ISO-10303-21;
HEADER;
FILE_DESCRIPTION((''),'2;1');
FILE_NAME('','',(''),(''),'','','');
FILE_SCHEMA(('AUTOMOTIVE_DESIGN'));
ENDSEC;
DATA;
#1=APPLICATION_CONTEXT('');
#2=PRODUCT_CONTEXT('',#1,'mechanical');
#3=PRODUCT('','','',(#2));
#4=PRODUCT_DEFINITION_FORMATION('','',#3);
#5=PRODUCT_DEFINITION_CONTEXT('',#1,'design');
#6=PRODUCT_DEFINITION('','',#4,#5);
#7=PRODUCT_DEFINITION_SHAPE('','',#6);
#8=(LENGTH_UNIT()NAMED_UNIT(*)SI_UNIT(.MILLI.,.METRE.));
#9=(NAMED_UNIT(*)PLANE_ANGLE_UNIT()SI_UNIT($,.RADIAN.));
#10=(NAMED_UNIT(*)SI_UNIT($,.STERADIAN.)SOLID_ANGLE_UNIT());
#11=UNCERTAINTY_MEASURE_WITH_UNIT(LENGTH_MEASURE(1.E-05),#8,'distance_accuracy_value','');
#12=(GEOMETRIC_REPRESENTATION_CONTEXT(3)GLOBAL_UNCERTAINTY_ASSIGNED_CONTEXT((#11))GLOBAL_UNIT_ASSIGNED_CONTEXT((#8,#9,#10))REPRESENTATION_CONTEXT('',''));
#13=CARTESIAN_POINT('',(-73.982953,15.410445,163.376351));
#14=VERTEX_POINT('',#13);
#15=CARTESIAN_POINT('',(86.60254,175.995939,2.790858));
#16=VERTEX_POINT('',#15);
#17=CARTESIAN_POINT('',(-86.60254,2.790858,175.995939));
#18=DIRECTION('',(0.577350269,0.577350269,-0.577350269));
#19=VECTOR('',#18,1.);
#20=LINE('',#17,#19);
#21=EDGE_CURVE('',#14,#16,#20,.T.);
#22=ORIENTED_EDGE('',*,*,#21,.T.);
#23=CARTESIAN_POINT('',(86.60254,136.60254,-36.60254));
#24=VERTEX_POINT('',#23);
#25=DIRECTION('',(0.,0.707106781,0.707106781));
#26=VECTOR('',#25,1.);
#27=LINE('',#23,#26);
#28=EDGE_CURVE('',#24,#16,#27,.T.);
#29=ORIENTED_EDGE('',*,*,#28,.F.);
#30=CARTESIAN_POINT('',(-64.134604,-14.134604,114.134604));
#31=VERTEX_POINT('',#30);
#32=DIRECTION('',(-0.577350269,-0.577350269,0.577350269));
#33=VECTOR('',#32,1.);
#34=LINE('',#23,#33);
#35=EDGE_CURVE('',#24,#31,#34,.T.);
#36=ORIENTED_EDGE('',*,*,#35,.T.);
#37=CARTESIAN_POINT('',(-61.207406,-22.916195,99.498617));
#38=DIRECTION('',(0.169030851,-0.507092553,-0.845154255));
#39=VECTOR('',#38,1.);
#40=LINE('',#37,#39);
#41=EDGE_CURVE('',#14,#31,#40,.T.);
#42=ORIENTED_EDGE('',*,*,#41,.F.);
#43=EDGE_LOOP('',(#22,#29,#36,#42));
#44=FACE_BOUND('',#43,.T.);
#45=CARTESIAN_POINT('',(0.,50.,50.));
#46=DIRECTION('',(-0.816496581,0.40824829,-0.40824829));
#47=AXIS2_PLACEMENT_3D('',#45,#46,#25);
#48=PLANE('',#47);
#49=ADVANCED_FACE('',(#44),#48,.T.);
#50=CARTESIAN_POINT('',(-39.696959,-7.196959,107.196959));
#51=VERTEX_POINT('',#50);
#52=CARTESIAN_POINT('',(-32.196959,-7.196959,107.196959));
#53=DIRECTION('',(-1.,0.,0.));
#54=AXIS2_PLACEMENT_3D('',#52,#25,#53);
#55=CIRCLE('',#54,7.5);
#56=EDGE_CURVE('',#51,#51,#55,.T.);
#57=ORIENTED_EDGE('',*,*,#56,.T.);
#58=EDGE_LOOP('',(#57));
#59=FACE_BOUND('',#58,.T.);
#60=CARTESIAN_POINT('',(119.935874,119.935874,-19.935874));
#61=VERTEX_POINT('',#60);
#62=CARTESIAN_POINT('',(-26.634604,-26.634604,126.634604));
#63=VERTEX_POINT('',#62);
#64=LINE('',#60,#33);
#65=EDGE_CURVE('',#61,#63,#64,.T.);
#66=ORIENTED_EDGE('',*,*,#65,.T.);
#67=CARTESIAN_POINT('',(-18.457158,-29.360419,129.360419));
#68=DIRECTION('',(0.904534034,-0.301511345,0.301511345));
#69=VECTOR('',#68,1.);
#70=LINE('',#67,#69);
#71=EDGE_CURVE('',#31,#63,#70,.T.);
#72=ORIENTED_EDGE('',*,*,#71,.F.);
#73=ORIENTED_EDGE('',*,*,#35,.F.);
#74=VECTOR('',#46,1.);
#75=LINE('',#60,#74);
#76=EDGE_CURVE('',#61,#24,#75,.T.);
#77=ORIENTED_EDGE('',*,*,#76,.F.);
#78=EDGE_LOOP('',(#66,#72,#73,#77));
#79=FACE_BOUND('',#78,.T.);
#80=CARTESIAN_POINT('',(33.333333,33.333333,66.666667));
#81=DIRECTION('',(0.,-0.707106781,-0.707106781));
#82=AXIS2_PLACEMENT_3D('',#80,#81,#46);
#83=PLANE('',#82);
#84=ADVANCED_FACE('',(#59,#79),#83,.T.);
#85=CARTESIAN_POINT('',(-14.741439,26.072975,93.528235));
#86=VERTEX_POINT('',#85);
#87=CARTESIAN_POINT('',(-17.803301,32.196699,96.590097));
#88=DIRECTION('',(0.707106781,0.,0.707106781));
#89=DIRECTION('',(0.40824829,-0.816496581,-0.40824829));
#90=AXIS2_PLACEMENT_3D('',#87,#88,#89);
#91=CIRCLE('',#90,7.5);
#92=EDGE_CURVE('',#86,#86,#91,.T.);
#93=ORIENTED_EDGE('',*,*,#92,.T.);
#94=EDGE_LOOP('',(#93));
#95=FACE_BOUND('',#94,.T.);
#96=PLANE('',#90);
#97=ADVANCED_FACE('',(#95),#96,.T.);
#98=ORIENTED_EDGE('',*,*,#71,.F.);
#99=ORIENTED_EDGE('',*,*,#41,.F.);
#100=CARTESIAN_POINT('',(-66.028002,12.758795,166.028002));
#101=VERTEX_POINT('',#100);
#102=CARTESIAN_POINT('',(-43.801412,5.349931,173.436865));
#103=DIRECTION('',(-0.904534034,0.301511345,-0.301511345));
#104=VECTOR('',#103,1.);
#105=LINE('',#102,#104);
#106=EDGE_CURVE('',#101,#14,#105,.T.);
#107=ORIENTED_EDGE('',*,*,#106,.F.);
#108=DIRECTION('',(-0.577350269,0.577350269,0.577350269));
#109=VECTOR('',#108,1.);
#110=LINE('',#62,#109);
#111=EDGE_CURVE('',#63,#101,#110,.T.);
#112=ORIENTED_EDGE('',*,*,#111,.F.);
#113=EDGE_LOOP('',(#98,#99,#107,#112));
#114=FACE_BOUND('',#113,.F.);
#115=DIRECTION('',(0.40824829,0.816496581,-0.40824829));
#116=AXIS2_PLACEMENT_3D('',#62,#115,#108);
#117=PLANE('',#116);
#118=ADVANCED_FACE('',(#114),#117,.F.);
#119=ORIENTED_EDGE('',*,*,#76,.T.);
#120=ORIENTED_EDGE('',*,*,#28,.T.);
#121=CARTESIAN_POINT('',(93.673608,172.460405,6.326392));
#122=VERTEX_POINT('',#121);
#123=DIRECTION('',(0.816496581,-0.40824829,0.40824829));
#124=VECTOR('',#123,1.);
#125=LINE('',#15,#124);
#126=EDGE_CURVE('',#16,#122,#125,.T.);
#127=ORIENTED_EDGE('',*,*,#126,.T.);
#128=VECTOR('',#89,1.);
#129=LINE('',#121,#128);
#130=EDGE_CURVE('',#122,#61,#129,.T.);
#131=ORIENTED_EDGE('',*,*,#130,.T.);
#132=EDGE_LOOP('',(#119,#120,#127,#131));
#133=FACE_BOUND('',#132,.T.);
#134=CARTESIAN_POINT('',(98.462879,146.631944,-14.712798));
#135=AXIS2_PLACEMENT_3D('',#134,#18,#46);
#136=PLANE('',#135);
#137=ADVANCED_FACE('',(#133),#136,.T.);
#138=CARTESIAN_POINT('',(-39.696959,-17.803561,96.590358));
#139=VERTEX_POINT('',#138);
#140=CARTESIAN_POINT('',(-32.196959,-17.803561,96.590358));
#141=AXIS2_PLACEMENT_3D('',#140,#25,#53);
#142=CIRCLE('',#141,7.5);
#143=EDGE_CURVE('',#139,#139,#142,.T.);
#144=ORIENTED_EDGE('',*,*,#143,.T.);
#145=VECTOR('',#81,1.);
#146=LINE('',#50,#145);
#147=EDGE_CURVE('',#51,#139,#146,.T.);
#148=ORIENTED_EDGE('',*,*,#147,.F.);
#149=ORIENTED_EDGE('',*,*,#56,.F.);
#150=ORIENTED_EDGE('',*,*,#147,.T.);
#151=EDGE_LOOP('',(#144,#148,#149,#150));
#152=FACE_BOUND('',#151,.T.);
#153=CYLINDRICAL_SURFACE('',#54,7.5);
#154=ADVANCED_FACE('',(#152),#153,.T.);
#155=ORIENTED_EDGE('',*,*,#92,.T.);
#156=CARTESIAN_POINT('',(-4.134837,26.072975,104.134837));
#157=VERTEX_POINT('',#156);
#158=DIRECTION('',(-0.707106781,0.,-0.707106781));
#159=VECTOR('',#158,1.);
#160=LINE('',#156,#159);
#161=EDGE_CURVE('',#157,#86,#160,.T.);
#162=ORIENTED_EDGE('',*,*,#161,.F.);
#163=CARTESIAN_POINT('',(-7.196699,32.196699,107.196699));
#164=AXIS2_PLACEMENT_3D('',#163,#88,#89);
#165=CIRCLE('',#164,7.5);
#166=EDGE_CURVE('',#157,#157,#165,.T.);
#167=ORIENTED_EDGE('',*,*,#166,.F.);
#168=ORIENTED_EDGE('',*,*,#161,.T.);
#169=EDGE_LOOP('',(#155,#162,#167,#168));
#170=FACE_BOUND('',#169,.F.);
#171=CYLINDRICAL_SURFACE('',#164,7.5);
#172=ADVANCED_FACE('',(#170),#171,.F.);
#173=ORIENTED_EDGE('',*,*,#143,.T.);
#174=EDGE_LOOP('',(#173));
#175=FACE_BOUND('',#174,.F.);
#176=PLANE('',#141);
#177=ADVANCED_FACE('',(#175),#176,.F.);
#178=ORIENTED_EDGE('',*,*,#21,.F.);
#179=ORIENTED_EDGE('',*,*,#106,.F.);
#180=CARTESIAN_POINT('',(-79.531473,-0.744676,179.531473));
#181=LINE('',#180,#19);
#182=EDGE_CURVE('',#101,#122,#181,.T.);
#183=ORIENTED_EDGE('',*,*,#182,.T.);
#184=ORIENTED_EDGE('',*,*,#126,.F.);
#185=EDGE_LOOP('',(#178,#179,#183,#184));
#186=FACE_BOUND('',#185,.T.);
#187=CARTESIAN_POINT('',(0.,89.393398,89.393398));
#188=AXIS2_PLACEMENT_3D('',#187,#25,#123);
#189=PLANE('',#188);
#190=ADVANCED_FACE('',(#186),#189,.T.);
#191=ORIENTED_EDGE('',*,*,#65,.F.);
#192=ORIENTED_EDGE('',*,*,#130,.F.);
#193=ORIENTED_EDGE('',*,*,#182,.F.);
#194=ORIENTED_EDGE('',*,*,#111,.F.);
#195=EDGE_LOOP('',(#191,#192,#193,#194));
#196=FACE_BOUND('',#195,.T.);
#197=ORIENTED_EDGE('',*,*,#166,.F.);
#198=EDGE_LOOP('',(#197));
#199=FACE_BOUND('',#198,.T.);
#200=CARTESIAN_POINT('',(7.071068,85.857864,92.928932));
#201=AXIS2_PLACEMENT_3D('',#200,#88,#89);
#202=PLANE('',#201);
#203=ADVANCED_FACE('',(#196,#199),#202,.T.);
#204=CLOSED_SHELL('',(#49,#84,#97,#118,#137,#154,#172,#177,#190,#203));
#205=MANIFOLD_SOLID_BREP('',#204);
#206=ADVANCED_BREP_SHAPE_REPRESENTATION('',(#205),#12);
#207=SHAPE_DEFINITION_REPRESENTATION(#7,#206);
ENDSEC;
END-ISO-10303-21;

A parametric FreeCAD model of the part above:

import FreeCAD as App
import Part
import Sketcher
from FreeCAD import Vector
Q = App.Units.Quantity


def add_polygon(sketch, points):
    """Adds a closed chain of lines whose ends are joined by coincident constraints."""
    first, n = sketch.GeometryCount, len(points)
    for a, b in zip(points, points[1:] + points[:1]):
        sketch.addGeometry(Part.LineSegment(App.Vector(*a, 0), App.Vector(*b, 0)), False)
    for i in range(n):
        sketch.addConstraint(Sketcher.Constraint("Coincident", first + i, 2, first + (i + 1) % n, 1))

doc = App.newDocument("Part")
body = doc.addObject("PartDesign::Body", "Body")

# Sketch on an angled plane
sketch1 = body.newObject("Sketcher::SketchObject", "Sketch")
sketch1.Placement = App.Placement(Vector(0, -50, 50), App.Rotation(Vector(0.816496581, -0.40824829, -0.40824829), Vector(0, -0.707106781, 0.707106781), Vector(-0.577350269, -0.577350269, -0.577350269), "ZXY"))
add_polygon(sketch1, [(0, 0), (0, 55.710678), (-8.660254, 55.710678), (-40.824829, 0)])  # lines 0-3
sketch1.addConstraint(Sketcher.Constraint("Vertical", 0))
sketch1.addConstraint(Sketcher.Constraint("Horizontal", 1))
sketch1.addConstraint(Sketcher.Constraint("Horizontal", 3))
sketch1.addConstraint(Sketcher.Constraint("Coincident", 3, 2, -1, 1))
sketch1.addConstraint(Sketcher.Constraint("Angle", 2, Q("-120 deg")))
sketch1.addConstraint(Sketcher.Constraint("DistanceX", 3, 1, 3, 2, Q("40.824829 mm")))
sketch1.addConstraint(Sketcher.Constraint("DistanceY", 0, 1, 0, 2, Q("55.710678 mm")))
pad1 = body.newObject("PartDesign::Pad", "Pad")
pad1.Profile = sketch1
pad1.Length = 300
pad1.Midplane = True

# Sketch on an angled plane
sketch2 = body.newObject("Sketcher::SketchObject", "Sketch001")
sketch2.Placement = App.Placement(Vector(0, -50, 50), App.Rotation(Vector(1, 0, 0), Vector(0, 0.707106781, 0.707106781), Vector(0, -0.707106781, 0.707106781), "ZXY"))
sketch2.addGeometry(Part.Circle(Vector(32.196959, 80.888716, 0), Vector(0, 0, 1), 7.5), False)
sketch2.addConstraint(Sketcher.Constraint("Diameter", 0, Q("15 mm")))
sketch2.addConstraint(Sketcher.Constraint("DistanceX", -1, 1, 0, 3, Q("32.196959 mm")))
sketch2.addConstraint(Sketcher.Constraint("DistanceY", -1, 1, 0, 3, Q("80.888716 mm")))
pad2 = body.newObject("PartDesign::Pad", "Pad001")
pad2.Profile = sketch2
pad2.Length = 15
pad2.Reversed = True

# Sketch on an angled plane
sketch3 = body.newObject("Sketcher::SketchObject", "Sketch002")
sketch3.Placement = App.Placement(Vector(-25, -50, 75), App.Rotation(Vector(-0.40824829, 0.816496581, -0.40824829), Vector(-0.577350269, -0.577350268, -0.577350269), Vector(-0.707106781, 0, 0.707106781), "ZXY"))
sketch3.addGeometry(Part.Circle(Vector(-11.75216, -47.456286, 0), Vector(0, 0, 1), 7.5), False)
sketch3.addConstraint(Sketcher.Constraint("Diameter", 0, Q("15 mm")))
sketch3.addConstraint(Sketcher.Constraint("DistanceX", 0, 3, -1, 1, Q("11.75216 mm")))
sketch3.addConstraint(Sketcher.Constraint("DistanceY", 0, 3, -1, 1, Q("47.456286 mm")))
pocket1 = body.newObject("PartDesign::Pocket", "Pocket")
pocket1.Profile = sketch3
pocket1.Length = 15

# Sketch on an angled plane
sketch4 = body.newObject("Sketcher::SketchObject", "Sketch003")
sketch4.Placement = App.Placement(Vector(-25, -50, 75), App.Rotation(Vector(-0.40824829, 0.816496581, -0.40824829), Vector(-0.577350269, -0.577350268, -0.577350269), Vector(-0.707106781, 0, 0.707106781), "ZXY"))
add_polygon(sketch4, [(20.412415, -103.867513), (-48.246862, -128.142234), (-48.246862, -150), (20.412415, -150)])  # lines 0-3
sketch4.addConstraint(Sketcher.Constraint("Vertical", 1))
sketch4.addConstraint(Sketcher.Constraint("Horizontal", 2))
sketch4.addConstraint(Sketcher.Constraint("Vertical", 3))
sketch4.addConstraint(Sketcher.Constraint("DistanceY", 1, 2, -1, 1, Q("150 mm")))
sketch4.addConstraint(Sketcher.Constraint("Distance", 0, Q("72.824161 mm")))
sketch4.addConstraint(Sketcher.Constraint("DistanceX", 2, 1, 2, 2, Q("68.659277 mm")))
sketch4.addConstraint(Sketcher.Constraint("DistanceY", 1, 2, 1, 1, Q("21.857766 mm")))
sketch4.addConstraint(Sketcher.Constraint("DistanceX", 0, 2, -1, 1, Q("48.246862 mm")))
pocket2 = body.newObject("PartDesign::Pocket", "Pocket001")
pocket2.Profile = sketch4
pocket2.Length = 50
body2 = doc.addObject("PartDesign::Body", "Body001")
doc.recompute()

body.Placement = App.Placement(Vector(0, 0, 0), App.Rotation(Vector(0, 0, 1), 180))
boolean = body2.newObject("PartDesign::Boolean", "Boolean")
boolean.Type = "Fuse"
boolean.addObjects([body])

doc.recompute()
